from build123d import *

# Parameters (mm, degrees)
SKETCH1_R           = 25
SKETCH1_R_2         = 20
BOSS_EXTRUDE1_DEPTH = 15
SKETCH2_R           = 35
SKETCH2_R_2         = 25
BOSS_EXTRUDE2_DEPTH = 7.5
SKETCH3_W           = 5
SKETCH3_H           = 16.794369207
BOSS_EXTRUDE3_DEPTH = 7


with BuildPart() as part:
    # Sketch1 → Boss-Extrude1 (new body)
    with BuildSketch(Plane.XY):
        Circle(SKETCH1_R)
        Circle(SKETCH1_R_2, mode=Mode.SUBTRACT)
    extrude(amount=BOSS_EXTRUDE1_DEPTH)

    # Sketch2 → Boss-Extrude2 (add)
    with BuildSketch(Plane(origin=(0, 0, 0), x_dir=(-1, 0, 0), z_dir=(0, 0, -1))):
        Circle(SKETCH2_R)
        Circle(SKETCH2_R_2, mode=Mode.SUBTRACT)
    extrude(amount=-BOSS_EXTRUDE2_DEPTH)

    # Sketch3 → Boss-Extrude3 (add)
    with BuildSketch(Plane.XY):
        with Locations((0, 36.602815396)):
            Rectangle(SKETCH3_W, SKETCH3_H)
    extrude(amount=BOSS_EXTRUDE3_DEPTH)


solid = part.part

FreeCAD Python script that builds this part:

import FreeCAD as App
import Part
import Sketcher

V = App.Vector

doc = App.newDocument("Part")
body = doc.addObject("PartDesign::Body", "Body")

# Sketch on XY plane
sketch1 = doc.addObject("Sketcher::SketchObject", "Sketch")
body.addObject(sketch1)
sketch1.AttachmentSupport = (doc.XY_Plane, [""])
sketch1.MapMode = "FlatFace"
sketch1.addGeometry([
    Part.Circle(V(0, 0, 0), V(0, 0, 1), 25),
    Part.Circle(V(0, 0, 0), V(0, 0, 1), 20),
], False)
sketch1.addConstraint([
    Sketcher.Constraint("Coincident", 0, 3, -1, 1),
    Sketcher.Constraint("Coincident", 1, 3, -1, 1),
    Sketcher.Constraint("Diameter", 0, 50.0),
    Sketcher.Constraint("Diameter", 1, 40.0),
])
pad1 = doc.addObject("PartDesign::Pad", "Pad")
body.addObject(pad1)
pad1.Profile = sketch1
pad1.Length = 15

# Sketch on XY plane
sketch2 = doc.addObject("Sketcher::SketchObject", "Sketch001")
body.addObject(sketch2)
sketch2.AttachmentSupport = (doc.XY_Plane, [""])
sketch2.MapMode = "FlatFace"
sketch2.addGeometry([
    Part.Circle(V(0, 0, 0), V(0, 0, 1), 35),
    Part.Circle(V(0, 0, 0), V(0, 0, 1), 25),
], False)
sketch2.addConstraint([
    Sketcher.Constraint("Coincident", 0, 3, -1, 1),
    Sketcher.Constraint("Coincident", 1, 3, -1, 1),
    Sketcher.Constraint("Diameter", 0, 70.0),
    Sketcher.Constraint("Diameter", 1, 50.0),
])
pad2 = doc.addObject("PartDesign::Pad", "Pad001")
body.addObject(pad2)
pad2.Profile = sketch2
pad2.Length = 7.5

# Sketch on XY plane
sketch3 = doc.addObject("Sketcher::SketchObject", "Sketch002")
body.addObject(sketch3)
sketch3.AttachmentSupport = (doc.XY_Plane, [""])
sketch3.MapMode = "FlatFace"
sketch3.addGeometry([
    Part.LineSegment(V(-2.5, 45, 0), V(-2.5, 28.205631, 0)),
    Part.LineSegment(V(-2.5, 28.205631, 0), V(2.5, 28.205631, 0)),
    Part.LineSegment(V(2.5, 28.205631, 0), V(2.5, 45, 0)),
    Part.LineSegment(V(2.5, 45, 0), V(-2.5, 45, 0)),
], False)
sketch3.addConstraint([
    Sketcher.Constraint("Coincident", 0, 2, 1, 1),
    Sketcher.Constraint("Coincident", 1, 2, 2, 1),
    Sketcher.Constraint("Coincident", 2, 2, 3, 1),
    Sketcher.Constraint("Coincident", 3, 2, 0, 1),
    Sketcher.Constraint("Vertical", 0),
    Sketcher.Constraint("Horizontal", 1),
    Sketcher.Constraint("Vertical", 2),
    Sketcher.Constraint("Horizontal", 3),
    Sketcher.Constraint("DistanceX", 1, 1, 1, 2, 5.0),
    Sketcher.Constraint("DistanceY", -1, 1, 2, 2, 45.0),
    Sketcher.Constraint("DistanceX", 0, 2, -1, 1, 2.5),
    Sketcher.Constraint("DistanceY", 0, 2, 0, 1, 16.794369),
])
pad3 = doc.addObject("PartDesign::Pad", "Pad002")
body.addObject(pad3)
pad3.Profile = sketch3
pad3.Length = 7

doc.recompute()
